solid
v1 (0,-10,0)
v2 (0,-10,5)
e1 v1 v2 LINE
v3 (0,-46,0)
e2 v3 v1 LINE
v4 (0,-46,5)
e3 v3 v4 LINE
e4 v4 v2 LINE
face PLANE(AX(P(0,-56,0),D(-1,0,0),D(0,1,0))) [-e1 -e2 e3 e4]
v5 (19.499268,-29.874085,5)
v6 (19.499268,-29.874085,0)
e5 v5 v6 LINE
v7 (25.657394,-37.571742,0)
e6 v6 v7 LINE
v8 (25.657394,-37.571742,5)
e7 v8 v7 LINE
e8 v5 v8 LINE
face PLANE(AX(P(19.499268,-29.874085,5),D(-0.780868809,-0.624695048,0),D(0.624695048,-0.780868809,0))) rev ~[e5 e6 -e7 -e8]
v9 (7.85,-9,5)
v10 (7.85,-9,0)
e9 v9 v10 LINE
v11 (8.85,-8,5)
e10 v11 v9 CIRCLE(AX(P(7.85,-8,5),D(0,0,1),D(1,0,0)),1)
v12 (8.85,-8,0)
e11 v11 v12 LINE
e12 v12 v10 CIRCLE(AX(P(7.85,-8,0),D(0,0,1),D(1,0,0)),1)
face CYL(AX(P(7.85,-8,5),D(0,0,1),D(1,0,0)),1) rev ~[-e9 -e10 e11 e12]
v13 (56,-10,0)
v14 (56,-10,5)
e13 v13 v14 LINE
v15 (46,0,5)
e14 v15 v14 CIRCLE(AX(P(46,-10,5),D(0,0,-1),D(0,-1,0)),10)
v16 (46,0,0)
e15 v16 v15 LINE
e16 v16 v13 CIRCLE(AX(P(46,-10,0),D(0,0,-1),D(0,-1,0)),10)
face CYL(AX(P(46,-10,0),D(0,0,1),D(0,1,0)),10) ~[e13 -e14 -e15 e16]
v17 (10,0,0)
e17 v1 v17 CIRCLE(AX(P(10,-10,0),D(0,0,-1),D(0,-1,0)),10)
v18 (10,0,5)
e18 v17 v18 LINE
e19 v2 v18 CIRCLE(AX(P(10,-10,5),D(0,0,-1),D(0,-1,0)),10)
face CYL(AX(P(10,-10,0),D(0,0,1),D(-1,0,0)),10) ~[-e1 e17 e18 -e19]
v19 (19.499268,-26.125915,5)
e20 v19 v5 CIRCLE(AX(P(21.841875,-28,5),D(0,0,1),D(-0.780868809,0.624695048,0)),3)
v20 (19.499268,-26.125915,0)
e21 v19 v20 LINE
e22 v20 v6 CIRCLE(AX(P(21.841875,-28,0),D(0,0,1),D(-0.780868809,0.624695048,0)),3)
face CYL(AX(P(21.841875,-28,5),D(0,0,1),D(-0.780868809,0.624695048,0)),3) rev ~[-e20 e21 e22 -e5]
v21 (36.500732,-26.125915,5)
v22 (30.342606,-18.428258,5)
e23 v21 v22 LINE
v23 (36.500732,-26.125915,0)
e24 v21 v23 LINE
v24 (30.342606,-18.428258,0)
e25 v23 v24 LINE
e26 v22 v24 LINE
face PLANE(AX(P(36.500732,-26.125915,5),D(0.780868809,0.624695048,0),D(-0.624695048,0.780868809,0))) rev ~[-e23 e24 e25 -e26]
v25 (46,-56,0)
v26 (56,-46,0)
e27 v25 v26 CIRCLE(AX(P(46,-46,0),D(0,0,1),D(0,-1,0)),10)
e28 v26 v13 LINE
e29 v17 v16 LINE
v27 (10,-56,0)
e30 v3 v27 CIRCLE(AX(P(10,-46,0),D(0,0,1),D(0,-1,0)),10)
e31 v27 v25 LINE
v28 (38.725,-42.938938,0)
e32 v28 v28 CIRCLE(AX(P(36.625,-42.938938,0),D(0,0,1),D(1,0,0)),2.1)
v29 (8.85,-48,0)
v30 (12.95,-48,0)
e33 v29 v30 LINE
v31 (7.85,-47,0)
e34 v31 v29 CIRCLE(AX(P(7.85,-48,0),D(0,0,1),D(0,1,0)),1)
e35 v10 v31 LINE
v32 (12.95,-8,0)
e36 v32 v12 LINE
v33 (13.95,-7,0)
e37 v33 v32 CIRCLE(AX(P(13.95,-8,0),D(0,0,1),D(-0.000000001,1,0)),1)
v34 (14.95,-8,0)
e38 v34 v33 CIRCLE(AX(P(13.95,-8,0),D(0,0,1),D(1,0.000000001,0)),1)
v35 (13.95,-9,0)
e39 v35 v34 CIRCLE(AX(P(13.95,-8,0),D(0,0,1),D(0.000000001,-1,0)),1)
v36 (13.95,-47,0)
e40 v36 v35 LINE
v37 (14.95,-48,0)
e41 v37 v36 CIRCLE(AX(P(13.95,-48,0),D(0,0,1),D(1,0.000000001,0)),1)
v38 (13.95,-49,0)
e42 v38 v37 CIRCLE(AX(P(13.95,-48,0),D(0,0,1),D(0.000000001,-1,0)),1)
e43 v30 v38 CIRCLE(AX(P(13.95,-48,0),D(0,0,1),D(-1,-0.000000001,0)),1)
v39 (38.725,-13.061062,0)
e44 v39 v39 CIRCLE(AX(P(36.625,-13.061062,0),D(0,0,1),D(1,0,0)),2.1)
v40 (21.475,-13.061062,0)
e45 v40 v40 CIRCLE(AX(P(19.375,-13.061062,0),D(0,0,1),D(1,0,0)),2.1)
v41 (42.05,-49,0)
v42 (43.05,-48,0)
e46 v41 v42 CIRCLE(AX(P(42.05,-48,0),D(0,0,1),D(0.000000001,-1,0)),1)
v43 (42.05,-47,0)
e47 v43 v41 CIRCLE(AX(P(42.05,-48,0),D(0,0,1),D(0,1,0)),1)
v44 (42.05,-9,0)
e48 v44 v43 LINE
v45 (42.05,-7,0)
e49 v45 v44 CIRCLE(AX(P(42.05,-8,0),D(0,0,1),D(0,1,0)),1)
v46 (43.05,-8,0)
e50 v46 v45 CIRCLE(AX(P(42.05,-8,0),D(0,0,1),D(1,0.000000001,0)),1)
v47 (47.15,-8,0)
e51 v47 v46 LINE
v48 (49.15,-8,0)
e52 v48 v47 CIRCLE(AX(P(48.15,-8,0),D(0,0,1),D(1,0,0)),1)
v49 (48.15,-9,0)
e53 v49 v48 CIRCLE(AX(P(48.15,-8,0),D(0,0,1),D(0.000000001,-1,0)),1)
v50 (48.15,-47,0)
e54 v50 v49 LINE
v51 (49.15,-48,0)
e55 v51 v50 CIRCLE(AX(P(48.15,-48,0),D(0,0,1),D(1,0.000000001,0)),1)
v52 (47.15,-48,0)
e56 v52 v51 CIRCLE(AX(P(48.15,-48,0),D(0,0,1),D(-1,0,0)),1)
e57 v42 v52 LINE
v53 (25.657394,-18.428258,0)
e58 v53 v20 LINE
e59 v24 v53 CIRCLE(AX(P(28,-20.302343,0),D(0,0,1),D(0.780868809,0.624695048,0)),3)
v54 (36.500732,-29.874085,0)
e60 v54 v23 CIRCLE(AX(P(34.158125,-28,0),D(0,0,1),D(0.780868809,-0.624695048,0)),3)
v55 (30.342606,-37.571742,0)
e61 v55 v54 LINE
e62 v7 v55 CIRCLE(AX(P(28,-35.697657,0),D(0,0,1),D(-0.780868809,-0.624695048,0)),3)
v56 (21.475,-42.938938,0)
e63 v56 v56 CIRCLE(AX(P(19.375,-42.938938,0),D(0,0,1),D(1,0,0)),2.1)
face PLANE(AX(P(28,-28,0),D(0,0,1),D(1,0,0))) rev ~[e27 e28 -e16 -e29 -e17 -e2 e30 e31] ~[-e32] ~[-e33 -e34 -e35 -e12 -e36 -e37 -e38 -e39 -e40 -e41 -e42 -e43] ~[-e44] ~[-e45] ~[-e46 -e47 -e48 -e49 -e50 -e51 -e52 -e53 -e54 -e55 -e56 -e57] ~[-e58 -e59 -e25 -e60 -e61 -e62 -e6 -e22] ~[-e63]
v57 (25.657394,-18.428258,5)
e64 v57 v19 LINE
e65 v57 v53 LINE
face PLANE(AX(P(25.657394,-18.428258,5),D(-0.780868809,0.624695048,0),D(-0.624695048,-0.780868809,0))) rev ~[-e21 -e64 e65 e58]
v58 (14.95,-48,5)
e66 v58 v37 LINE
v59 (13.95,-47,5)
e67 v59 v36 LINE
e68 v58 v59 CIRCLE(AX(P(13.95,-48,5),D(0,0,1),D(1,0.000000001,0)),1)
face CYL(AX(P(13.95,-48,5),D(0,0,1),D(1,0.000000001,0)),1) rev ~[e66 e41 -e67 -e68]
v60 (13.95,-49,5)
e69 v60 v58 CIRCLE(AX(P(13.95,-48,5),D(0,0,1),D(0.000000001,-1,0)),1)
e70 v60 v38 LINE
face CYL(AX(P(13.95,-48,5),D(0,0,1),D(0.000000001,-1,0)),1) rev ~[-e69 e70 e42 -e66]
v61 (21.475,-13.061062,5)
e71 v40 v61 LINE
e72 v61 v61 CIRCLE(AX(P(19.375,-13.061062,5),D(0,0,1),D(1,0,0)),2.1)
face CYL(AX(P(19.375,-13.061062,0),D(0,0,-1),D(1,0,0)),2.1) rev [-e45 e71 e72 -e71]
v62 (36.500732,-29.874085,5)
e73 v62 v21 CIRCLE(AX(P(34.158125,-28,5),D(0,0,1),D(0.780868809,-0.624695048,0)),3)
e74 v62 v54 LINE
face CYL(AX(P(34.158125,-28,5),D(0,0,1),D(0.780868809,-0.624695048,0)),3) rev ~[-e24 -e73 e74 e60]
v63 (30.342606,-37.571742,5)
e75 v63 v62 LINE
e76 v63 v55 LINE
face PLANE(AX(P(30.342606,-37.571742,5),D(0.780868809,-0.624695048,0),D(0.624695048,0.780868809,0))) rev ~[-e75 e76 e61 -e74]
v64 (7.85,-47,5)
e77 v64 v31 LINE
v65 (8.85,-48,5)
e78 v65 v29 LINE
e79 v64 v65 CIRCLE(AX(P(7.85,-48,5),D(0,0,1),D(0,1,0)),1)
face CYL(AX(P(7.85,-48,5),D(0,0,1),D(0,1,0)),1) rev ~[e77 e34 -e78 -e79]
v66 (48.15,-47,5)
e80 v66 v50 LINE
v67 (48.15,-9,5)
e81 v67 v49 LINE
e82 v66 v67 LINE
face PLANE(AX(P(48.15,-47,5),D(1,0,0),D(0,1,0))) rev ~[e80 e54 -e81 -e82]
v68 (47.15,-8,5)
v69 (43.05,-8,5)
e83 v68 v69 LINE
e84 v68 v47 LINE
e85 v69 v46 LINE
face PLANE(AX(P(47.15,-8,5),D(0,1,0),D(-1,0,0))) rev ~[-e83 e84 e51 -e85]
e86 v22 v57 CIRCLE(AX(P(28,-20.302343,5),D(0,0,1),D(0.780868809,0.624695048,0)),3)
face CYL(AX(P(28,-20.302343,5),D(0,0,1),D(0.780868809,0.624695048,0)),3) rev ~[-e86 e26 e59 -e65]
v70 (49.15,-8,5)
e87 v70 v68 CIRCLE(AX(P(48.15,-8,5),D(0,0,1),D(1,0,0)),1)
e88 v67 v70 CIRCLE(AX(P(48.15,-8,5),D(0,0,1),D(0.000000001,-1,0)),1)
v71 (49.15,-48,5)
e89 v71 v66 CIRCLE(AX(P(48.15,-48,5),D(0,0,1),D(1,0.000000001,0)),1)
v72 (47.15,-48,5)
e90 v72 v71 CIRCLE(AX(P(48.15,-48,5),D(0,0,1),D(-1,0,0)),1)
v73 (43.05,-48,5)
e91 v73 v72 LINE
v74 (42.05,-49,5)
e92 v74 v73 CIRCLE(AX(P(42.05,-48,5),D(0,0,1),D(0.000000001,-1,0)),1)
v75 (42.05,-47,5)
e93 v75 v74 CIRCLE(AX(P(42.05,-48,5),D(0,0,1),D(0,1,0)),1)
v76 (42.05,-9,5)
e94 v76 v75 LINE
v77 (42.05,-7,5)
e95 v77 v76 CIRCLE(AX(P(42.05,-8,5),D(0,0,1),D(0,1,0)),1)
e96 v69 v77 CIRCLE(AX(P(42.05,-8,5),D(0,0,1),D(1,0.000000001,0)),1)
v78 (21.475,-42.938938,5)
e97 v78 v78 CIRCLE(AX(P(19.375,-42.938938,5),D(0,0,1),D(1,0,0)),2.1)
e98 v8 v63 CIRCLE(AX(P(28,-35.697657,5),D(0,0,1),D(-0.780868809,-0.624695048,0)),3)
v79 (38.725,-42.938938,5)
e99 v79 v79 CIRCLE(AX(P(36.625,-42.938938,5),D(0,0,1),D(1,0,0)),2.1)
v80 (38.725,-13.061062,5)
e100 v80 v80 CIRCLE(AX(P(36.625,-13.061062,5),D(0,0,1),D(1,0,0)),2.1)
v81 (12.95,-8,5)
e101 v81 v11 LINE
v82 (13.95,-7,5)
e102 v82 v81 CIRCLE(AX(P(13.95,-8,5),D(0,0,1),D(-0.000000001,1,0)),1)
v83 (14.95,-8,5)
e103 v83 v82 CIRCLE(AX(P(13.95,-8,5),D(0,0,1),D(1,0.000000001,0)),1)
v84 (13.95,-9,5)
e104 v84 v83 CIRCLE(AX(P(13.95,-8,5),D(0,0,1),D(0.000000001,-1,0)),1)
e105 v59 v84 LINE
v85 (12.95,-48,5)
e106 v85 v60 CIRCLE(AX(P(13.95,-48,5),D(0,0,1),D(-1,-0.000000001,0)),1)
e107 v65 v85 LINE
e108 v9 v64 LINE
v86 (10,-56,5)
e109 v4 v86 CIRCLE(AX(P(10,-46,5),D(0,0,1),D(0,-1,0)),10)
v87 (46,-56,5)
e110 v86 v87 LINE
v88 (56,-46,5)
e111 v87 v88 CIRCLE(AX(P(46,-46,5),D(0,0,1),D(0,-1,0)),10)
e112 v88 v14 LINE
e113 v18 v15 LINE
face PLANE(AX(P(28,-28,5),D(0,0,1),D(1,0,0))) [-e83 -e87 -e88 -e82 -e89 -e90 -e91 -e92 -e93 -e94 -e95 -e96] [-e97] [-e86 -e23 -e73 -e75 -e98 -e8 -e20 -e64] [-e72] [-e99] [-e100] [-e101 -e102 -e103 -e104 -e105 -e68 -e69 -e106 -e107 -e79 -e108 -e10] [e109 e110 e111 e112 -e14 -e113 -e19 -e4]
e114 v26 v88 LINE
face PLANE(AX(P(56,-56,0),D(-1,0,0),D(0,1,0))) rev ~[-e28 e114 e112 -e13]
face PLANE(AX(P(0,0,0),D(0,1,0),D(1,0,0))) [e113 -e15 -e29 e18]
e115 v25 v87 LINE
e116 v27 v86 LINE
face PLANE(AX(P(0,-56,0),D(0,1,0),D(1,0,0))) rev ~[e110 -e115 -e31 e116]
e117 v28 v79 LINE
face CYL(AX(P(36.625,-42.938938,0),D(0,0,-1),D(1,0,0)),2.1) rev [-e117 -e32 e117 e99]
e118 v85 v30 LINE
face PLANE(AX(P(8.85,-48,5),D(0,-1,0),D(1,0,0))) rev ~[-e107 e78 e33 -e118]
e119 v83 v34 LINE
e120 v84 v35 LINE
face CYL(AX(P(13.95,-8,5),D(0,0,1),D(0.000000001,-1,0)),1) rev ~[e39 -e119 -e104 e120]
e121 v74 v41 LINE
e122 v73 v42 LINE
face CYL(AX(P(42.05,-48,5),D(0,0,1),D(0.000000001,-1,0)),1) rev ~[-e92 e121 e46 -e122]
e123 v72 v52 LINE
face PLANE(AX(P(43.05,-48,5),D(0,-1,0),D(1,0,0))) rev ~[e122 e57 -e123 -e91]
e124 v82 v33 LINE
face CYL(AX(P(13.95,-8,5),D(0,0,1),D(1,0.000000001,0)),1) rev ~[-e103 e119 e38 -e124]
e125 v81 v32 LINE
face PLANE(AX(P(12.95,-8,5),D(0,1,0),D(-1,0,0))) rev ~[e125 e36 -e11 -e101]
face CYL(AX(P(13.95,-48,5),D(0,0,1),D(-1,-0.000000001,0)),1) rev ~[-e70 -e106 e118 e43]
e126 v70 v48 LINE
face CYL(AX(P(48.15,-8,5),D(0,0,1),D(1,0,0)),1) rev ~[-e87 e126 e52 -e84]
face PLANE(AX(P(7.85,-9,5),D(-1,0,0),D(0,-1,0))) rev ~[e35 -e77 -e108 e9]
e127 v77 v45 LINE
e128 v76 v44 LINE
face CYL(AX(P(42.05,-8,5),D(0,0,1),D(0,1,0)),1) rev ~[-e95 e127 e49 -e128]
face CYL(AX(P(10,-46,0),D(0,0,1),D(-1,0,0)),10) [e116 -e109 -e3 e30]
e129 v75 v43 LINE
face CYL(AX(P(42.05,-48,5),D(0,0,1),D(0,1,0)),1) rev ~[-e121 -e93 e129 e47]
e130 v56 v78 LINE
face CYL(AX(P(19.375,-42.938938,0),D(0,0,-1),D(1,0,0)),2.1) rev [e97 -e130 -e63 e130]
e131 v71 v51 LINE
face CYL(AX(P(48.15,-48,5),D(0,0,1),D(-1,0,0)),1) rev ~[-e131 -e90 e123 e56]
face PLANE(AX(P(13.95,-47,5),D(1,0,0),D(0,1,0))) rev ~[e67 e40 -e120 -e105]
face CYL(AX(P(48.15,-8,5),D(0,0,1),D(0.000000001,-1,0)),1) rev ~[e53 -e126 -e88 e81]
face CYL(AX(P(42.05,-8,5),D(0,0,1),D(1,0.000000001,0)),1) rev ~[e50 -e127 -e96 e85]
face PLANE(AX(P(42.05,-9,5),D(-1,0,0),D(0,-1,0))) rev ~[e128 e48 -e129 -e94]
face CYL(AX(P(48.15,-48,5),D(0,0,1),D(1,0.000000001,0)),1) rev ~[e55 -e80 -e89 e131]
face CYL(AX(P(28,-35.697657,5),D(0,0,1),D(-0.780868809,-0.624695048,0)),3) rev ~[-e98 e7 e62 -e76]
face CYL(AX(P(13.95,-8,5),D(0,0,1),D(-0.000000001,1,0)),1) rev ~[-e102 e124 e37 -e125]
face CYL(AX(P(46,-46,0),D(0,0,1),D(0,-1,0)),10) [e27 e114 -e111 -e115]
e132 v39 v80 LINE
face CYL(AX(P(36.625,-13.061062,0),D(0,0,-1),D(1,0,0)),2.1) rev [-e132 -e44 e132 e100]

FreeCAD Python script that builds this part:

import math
import FreeCAD as App
import Part
import Sketcher

V = App.Vector


def edges_at(feature, points):
    """Names of the edges that pass closest to the given points."""
    edges = feature.Shape.Edges
    near = lambda p: min(range(len(edges)), key=lambda i: edges[i].distToShape(Part.Vertex(*p))[0])
    return sorted({f"Edge{near(p) + 1}" for p in points})


def add_polygon(sketch, points):
    """Adds a closed chain of lines whose ends are joined by coincident constraints."""
    first, n = sketch.GeometryCount, len(points)
    for a, b in zip(points, points[1:] + points[:1]):
        sketch.addGeometry(Part.LineSegment(App.Vector(*a, 0), App.Vector(*b, 0)), False)
    for i in range(n):
        sketch.addConstraint(Sketcher.Constraint("Coincident", first + i, 2, first + (i + 1) % n, 1))

doc = App.newDocument("Part")
body = doc.addObject("PartDesign::Body", "Body")

sketch1 = doc.addObject("Sketcher::SketchObject", "Sketch")
body.addObject(sketch1)
sketch1.AttachmentSupport = (doc.XY_Plane, [""])
sketch1.MapMode = "FlatFace"
add_polygon(sketch1, [(0, 0), (0, -56), (56, -56), (56, 0)])
sketch1.addGeometry(Part.Circle(V(19.4, -42.9, 0), V(0, 0, 1), 2.1), False)
sketch1.addGeometry(Part.Circle(V(36.6, -42.9, 0), V(0, 0, 1), 2.1), False)
sketch1.addGeometry(Part.Circle(V(19.4, -13.1, 0), V(0, 0, 1), 2.1), False)
sketch1.addGeometry(Part.Circle(V(36.6, -13.1, 0), V(0, 0, 1), 2.1), False)
sketch1.addConstraint([
    Sketcher.Constraint("Vertical", 0),
    Sketcher.Constraint("Horizontal", 1),
    Sketcher.Constraint("Vertical", 2),
    Sketcher.Constraint("Horizontal", 3),
    Sketcher.Constraint("Coincident", 3, 2, -1, 1),
    Sketcher.Constraint("Equal", 4, 5),
    Sketcher.Constraint("Equal", 5, 6),
    Sketcher.Constraint("Equal", 6, 7),
    Sketcher.Constraint("Horizontal", 4, 3, 5, 3),
    Sketcher.Constraint("Horizontal", 6, 3, 7, 3),
    Sketcher.Constraint("Vertical", 4, 3, 6, 3),
    Sketcher.Constraint("Vertical", 5, 3, 7, 3),
    Sketcher.Constraint("Equal", 3, 0),
    Sketcher.Constraint("Diameter", 4, 4.2),
    Sketcher.Constraint("DistanceX", 1, 1, 1, 2, 56.0),
    Sketcher.Constraint("DistanceX", 4, 3, 5, 3, 17.25),
    Sketcher.Constraint("DistanceX", -1, 1, 4, 3, 19.375),
    Sketcher.Constraint("DistanceY", 4, 3, -1, 1, 42.938938),
    Sketcher.Constraint("DistanceY", 6, 3, -1, 1, 13.061062),
])
pad1 = doc.addObject("PartDesign::Pad", "Pad")
body.addObject(pad1)
pad1.Profile = sketch1
pad1.Length = 5
doc.recompute()

fillet = doc.addObject("PartDesign::Fillet", "Fillet")
body.addObject(fillet)
fillet.Base = (pad1, edges_at(pad1, [
    (56, -56, 2.5),
    (0, -56, 2.5),
    (0, 0, 2.5),
    (56, 0, 2.5),
]))
fillet.Radius = 10

sketch2 = doc.addObject("Sketcher::SketchObject", "Sketch001")
body.addObject(sketch2)
sketch2.AttachmentSupport = (doc.XY_Plane, [""])
sketch2.MapMode = "FlatFace"
sketch2.AttachmentOffset = App.Placement(V(0, 0, 5), App.Rotation())
sketch2.addGeometry([
    Part.ArcOfCircle(Part.Circle(V(42, -8, 0), V(0, 0, 1), 1), math.radians(0), math.radians(90)),
    Part.ArcOfCircle(Part.Circle(V(42, -8, 0), V(0, 0, 1), 1), math.radians(90), math.radians(270)),
    Part.LineSegment(V(42, -9, 0), V(42, -47, 0)),
    Part.ArcOfCircle(Part.Circle(V(42, -48, 0), V(0, 0, 1), 1), math.radians(90), math.radians(270)),
    Part.ArcOfCircle(Part.Circle(V(42, -48, 0), V(0, 0, 1), 1), math.radians(-90), math.radians(0)),
    Part.LineSegment(V(43, -48, 0), V(47.1, -48, 0)),
    Part.ArcOfCircle(Part.Circle(V(48.1, -48, 0), V(0, 0, 1), 1), math.radians(180), math.radians(360)),
    Part.ArcOfCircle(Part.Circle(V(48.1, -48, 0), V(0, 0, 1), 1), math.radians(0), math.radians(90)),
    Part.LineSegment(V(48.1, -47, 0), V(48.1, -9, 0)),
    Part.ArcOfCircle(Part.Circle(V(48.1, -8, 0), V(0, 0, 1), 1), math.radians(-90), math.radians(0)),
    Part.ArcOfCircle(Part.Circle(V(48.1, -8, 0), V(0, 0, 1), 1), math.radians(0), math.radians(180)),
    Part.LineSegment(V(47.1, -8, 0), V(43, -8, 0)),
    Part.ArcOfCircle(Part.Circle(V(13.9, -8, 0), V(0, 0, 1), 1), math.radians(-90), math.radians(0)),
    Part.ArcOfCircle(Part.Circle(V(13.9, -8, 0), V(0, 0, 1), 1), math.radians(0), math.radians(90)),
    Part.ArcOfCircle(Part.Circle(V(14, -8, 0), V(0, 0, 1), 1), math.radians(90), math.radians(180)),
    Part.LineSegment(V(12.9, -8, 0), V(8.8, -8, 0)),
    Part.ArcOfCircle(Part.Circle(V(7.8, -8, 0), V(0, 0, 1), 1), math.radians(0), math.radians(270)),
    Part.LineSegment(V(7.8, -9, 0), V(7.8, -47, 0)),
    Part.ArcOfCircle(Part.Circle(V(7.8, -48, 0), V(0, 0, 1), 1), math.radians(90), math.radians(360)),
    Part.LineSegment(V(8.8, -48, 0), V(12.9, -48, 0)),
    Part.ArcOfCircle(Part.Circle(V(14, -48, 0), V(0, 0, 1), 1), math.radians(-180), math.radians(-90)),
    Part.ArcOfCircle(Part.Circle(V(13.9, -48, 0), V(0, 0, 1), 1), math.radians(-90), math.radians(0)),
    Part.ArcOfCircle(Part.Circle(V(13.9, -48, 0), V(0, 0, 1), 1), math.radians(0), math.radians(90)),
    Part.LineSegment(V(13.9, -47, 0), V(13.9, -9, 0)),
], False)
sketch2.addConstraint([
    Sketcher.Constraint("Tangent", 0, 2, 1, 1),
    Sketcher.Constraint("Coincident", 1, 2, 2, 1),
    Sketcher.Constraint("Coincident", 2, 2, 3, 1),
    Sketcher.Constraint("Tangent", 3, 2, 4, 1),
    Sketcher.Constraint("Coincident", 4, 2, 5, 1),
    Sketcher.Constraint("Coincident", 5, 2, 6, 1),
    Sketcher.Constraint("Tangent", 6, 2, 7, 1),
    Sketcher.Constraint("Coincident", 7, 2, 8, 1),
    Sketcher.Constraint("Coincident", 8, 2, 9, 1),
    Sketcher.Constraint("Tangent", 9, 2, 10, 1),
    Sketcher.Constraint("Coincident", 10, 2, 11, 1),
    Sketcher.Constraint("Coincident", 11, 2, 0, 1),
    Sketcher.Constraint("Tangent", 12, 2, 13, 1),
    Sketcher.Constraint("Tangent", 13, 2, 14, 1),
    Sketcher.Constraint("Coincident", 14, 2, 15, 1),
    Sketcher.Constraint("Coincident", 15, 2, 16, 1),
    Sketcher.Constraint("Coincident", 16, 2, 17, 1),
    Sketcher.Constraint("Coincident", 17, 2, 18, 1),
    Sketcher.Constraint("Coincident", 18, 2, 19, 1),
    Sketcher.Constraint("Coincident", 19, 2, 20, 1),
    Sketcher.Constraint("Tangent", 20, 2, 21, 1),
    Sketcher.Constraint("Tangent", 21, 2, 22, 1),
    Sketcher.Constraint("Coincident", 22, 2, 23, 1),
    Sketcher.Constraint("Coincident", 23, 2, 12, 1),
    Sketcher.Constraint("Vertical", 2),
    Sketcher.Constraint("Horizontal", 5),
    Sketcher.Constraint("Vertical", 8),
    Sketcher.Constraint("Horizontal", 11),
    Sketcher.Constraint("Horizontal", 15),
    Sketcher.Constraint("Vertical", 17),
    Sketcher.Constraint("Horizontal", 19),
    Sketcher.Constraint("Vertical", 23),
    Sketcher.Constraint("Coincident", 14, 3, 12, 3),
    Sketcher.Constraint("Coincident", 22, 3, 20, 3),
    Sketcher.Constraint("Equal", 0, 1),
    Sketcher.Constraint("Equal", 1, 3),
    Sketcher.Constraint("Equal", 3, 4),
    Sketcher.Constraint("Equal", 4, 6),
    Sketcher.Constraint("Equal", 6, 7),
    Sketcher.Constraint("Equal", 7, 9),
    Sketcher.Constraint("Equal", 9, 10),
    Sketcher.Constraint("Equal", 10, 12),
    Sketcher.Constraint("Equal", 14, 16),
    Sketcher.Constraint("Equal", 16, 18),
    Sketcher.Constraint("Equal", 18, 20),
    Sketcher.Constraint("Horizontal", 4, 3, 6, 3),
    Sketcher.Constraint("Horizontal", 1, 3, 9, 3),
    Sketcher.Constraint("Horizontal", 10, 3, 12, 3),
    Sketcher.Constraint("Horizontal", 14, 3, 16, 3),
    Sketcher.Constraint("Horizontal", 7, 3, 18, 3),
    Sketcher.Constraint("Horizontal", 18, 3, 20, 3),
    Sketcher.Constraint("Horizontal", 22, 3, 4, 2),
    Sketcher.Constraint("Horizontal", 5, 2, 6, 2),
    Sketcher.Constraint("Horizontal", 16, 3, 9, 2),
    Sketcher.Constraint("Horizontal", 9, 2, 10, 2),
    Sketcher.Constraint("Horizontal", 11, 2, 12, 2),
    Sketcher.Constraint("Horizontal", 12, 2, 14, 2),
    Sketcher.Constraint("Horizontal", 6, 2, 18, 2),
    Sketcher.Constraint("Horizontal", 19, 2, 21, 2),
    Sketcher.Constraint("Vertical", 1, 3, 3, 3),
    Sketcher.Constraint("Vertical", 7, 3, 9, 3),
    Sketcher.Constraint("Vertical", 16, 3, 18, 3),
    Sketcher.Constraint("Vertical", 14, 3, 20, 3),
    Sketcher.Constraint("Vertical", 4, 3, 0, 2),
    Sketcher.Constraint("Vertical", 0, 2, 1, 2),
    Sketcher.Constraint("Vertical", 2, 2, 3, 2),
    Sketcher.Constraint("Vertical", 10, 3, 7, 2),
    Sketcher.Constraint("Vertical", 22, 3, 13, 2),
    Sketcher.Constraint("Vertical", 18, 3, 16, 2),
    Sketcher.Constraint("Vertical", 13, 2, 20, 2),
    Sketcher.Constraint("Vertical", 20, 2, 22, 2),
    Sketcher.Constraint("Equal", 11, 15),
    Sketcher.Constraint("Radius", 0, 1.0),
    Sketcher.Constraint("DistanceY", 2, 2, 2, 1, 38.0),
    Sketcher.Constraint("DistanceX", 5, 1, 5, 2, 4.1),
    Sketcher.Constraint("DistanceY", 0, 3, -1, 1, 8.0),
    Sketcher.Constraint("DistanceX", 12, 3, 0, 3, 28.1),
    Sketcher.Constraint("DistanceX", -1, 1, 0, 3, 42.05),
])
pocket1 = doc.addObject("PartDesign::Pocket", "Pocket")
body.addObject(pocket1)
pocket1.Profile = sketch2
pocket1.Length = 16

sketch3 = doc.addObject("Sketcher::SketchObject", "Sketch002")
body.addObject(sketch3)
sketch3.AttachmentSupport = (doc.XY_Plane, [""])
sketch3.MapMode = "FlatFace"
sketch3.AttachmentOffset = App.Placement(V(0, 0, 5), App.Rotation())
sketch3.addGeometry([
    Part.LineSegment(V(25.7, -18.4, 0), V(19.5, -26.1, 0)),
    Part.ArcOfCircle(Part.Circle(V(21.8, -28, 0), V(0, 0, 1), 3), math.radians(141), math.radians(219)),
    Part.LineSegment(V(19.5, -29.9, 0), V(25.7, -37.6, 0)),
    Part.ArcOfCircle(Part.Circle(V(28, -35.7, 0), V(0, 0, 1), 3), math.radians(-141), math.radians(-39)),
    Part.LineSegment(V(30.3, -37.6, 0), V(36.5, -29.9, 0)),
    Part.ArcOfCircle(Part.Circle(V(34.2, -28, 0), V(0, 0, 1), 3), math.radians(-39), math.radians(39)),
    Part.LineSegment(V(36.5, -26.1, 0), V(30.3, -18.4, 0)),
    Part.ArcOfCircle(Part.Circle(V(28, -20.3, 0), V(0, 0, 1), 3), math.radians(39), math.radians(141)),
], False)
sketch3.addConstraint([
    Sketcher.Constraint("Tangent", 0, 2, 1, 1),
    Sketcher.Constraint("Tangent", 1, 2, 2, 1),
    Sketcher.Constraint("Tangent", 2, 2, 3, 1),
    Sketcher.Constraint("Tangent", 3, 2, 4, 1),
    Sketcher.Constraint("Tangent", 4, 2, 5, 1),
    Sketcher.Constraint("Tangent", 5, 2, 6, 1),
    Sketcher.Constraint("Tangent", 6, 2, 7, 1),
    Sketcher.Constraint("Tangent", 7, 2, 0, 1),
    Sketcher.Constraint("Equal", 1, 3),
    Sketcher.Constraint("Equal", 3, 5),
    Sketcher.Constraint("Equal", 5, 7),
    Sketcher.Constraint("Parallel", 0, 4),
    Sketcher.Constraint("Parallel", 2, 6),
    Sketcher.Constraint("Horizontal", 1, 3, 5, 3),
    Sketcher.Constraint("Horizontal", 2, 2, 3, 2),
    Sketcher.Constraint("Radius", 1, 3.0),
    Sketcher.Constraint("DistanceY", 1, 3, -1, 1, 28.0),
    Sketcher.Constraint("DistanceX", -1, 1, 3, 3, 28.0),
    Sketcher.Constraint("Distance", 0, 9.857811),
    Sketcher.Constraint("DistanceX", -1, 1, 0, 2, 19.499268),
])
pocket2 = doc.addObject("PartDesign::Pocket", "Pocket001")
body.addObject(pocket2)
pocket2.Profile = sketch3
pocket2.Length = 16

doc.recompute()
